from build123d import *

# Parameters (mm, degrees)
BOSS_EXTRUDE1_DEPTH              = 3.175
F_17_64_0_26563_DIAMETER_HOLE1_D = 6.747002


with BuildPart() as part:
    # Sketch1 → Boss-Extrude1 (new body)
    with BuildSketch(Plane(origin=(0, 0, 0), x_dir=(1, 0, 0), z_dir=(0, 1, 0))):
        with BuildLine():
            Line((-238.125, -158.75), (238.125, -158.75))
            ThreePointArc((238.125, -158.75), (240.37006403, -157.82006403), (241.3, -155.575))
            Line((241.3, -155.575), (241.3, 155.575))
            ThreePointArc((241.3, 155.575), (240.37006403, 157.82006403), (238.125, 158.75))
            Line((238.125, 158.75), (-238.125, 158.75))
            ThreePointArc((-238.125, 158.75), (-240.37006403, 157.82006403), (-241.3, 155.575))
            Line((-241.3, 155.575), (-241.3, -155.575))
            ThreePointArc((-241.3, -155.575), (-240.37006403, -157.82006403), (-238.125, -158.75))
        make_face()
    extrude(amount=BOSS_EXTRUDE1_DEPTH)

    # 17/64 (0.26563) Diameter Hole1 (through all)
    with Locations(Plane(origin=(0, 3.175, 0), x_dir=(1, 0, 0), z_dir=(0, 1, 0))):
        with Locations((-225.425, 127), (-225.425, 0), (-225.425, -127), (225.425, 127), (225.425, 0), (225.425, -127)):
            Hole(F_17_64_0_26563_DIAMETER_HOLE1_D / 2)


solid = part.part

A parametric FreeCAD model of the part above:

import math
import FreeCAD as App
import Part
import Sketcher
from FreeCAD import Vector
Q = App.Units.Quantity

doc = App.newDocument("Part")
body = doc.addObject("PartDesign::Body", "Body")

# Sketch on XZ plane
sketch1 = doc.addObject("Sketcher::SketchObject", "Sketch")
body.addObject(sketch1)
sketch1.AttachmentSupport = (doc.XZ_Plane, [""])
sketch1.MapMode = "FlatFace"
sketch1.addGeometry([
    Part.LineSegment(Vector(-238.1, 158.8, 0), Vector(238.1, 158.8, 0)),  # 0
    Part.ArcOfCircle(Part.Circle(Vector(238.1, 155.6, 0), Vector(0, 0, 1), 3.2), math.radians(0), math.radians(90)),  # 1
    Part.LineSegment(Vector(241.3, 155.6, 0), Vector(241.3, -155.6, 0)),  # 2
    Part.ArcOfCircle(Part.Circle(Vector(238.1, -155.6, 0), Vector(0, 0, 1), 3.2), math.radians(-90), math.radians(0)),  # 3
    Part.LineSegment(Vector(238.1, -158.8, 0), Vector(-238.1, -158.8, 0)),  # 4
    Part.ArcOfCircle(Part.Circle(Vector(-238.1, -155.6, 0), Vector(0, 0, 1), 3.2), math.radians(-180), math.radians(-90)),  # 5
    Part.LineSegment(Vector(-241.3, -155.6, 0), Vector(-241.3, 155.6, 0)),  # 6
    Part.ArcOfCircle(Part.Circle(Vector(-238.1, 155.6, 0), Vector(0, 0, 1), 3.2), math.radians(90), math.radians(180)),  # 7
], False)
sketch1.addConstraint([
    Sketcher.Constraint("Tangent", 0, 2, 1, 2),
    Sketcher.Constraint("Tangent", 1, 1, 2, 1),
    Sketcher.Constraint("Tangent", 2, 2, 3, 2),
    Sketcher.Constraint("Tangent", 3, 1, 4, 1),
    Sketcher.Constraint("Tangent", 4, 2, 5, 2),
    Sketcher.Constraint("Tangent", 5, 1, 6, 1),
    Sketcher.Constraint("Tangent", 6, 2, 7, 2),
    Sketcher.Constraint("Tangent", 7, 1, 0, 1),
    Sketcher.Constraint("Horizontal", 0),
    Sketcher.Constraint("Vertical", 2),
    Sketcher.Constraint("Horizontal", 4),
    Sketcher.Constraint("Vertical", 6),
    Sketcher.Constraint("Equal", 1, 3),
    Sketcher.Constraint("Equal", 3, 5),
    Sketcher.Constraint("Equal", 5, 7),
    Sketcher.Constraint("Symmetric", 1, 3, 5, 3, -1, 1),
    Sketcher.Constraint("Radius", 1, Q("0.125 in")),
    Sketcher.Constraint("DistanceX", 0, 1, 0, 2, Q("18.75 in")),
    Sketcher.Constraint("DistanceY", 2, 2, 2, 1, Q("12.25 in")),
])
pad1 = doc.addObject("PartDesign::Pad", "Pad")
body.addObject(pad1)
pad1.Profile = sketch1
pad1.Length = Q("0.125 in")
pad1.Reversed = True

# Sketch on XZ plane
sketch2 = doc.addObject("Sketcher::SketchObject", "Sketch001")
body.addObject(sketch2)
sketch2.AttachmentSupport = (doc.XZ_Plane, [""])
sketch2.MapMode = "FlatFace"
sketch2.AttachmentOffset = App.Placement(Vector(0, 0, -0.125 * 25.4), App.Rotation())
sketch2.addGeometry([
    Part.Circle(Vector(-225.4, -127, 0), Vector(0, 0, 1), 3.4),  # 0
    Part.Circle(Vector(-225.4, 0, 0), Vector(0, 0, 1), 3.4),  # 1
    Part.Circle(Vector(-225.4, 127, 0), Vector(0, 0, 1), 3.4),  # 2
    Part.Circle(Vector(225.4, -127, 0), Vector(0, 0, 1), 3.4),  # 3
    Part.Circle(Vector(225.4, 0, 0), Vector(0, 0, 1), 3.4),  # 4
    Part.Circle(Vector(225.4, 127, 0), Vector(0, 0, 1), 3.4),  # 5
], False)
sketch2.addConstraint([
    Sketcher.Constraint("Equal", 0, 1),
    Sketcher.Constraint("Equal", 1, 2),
    Sketcher.Constraint("Equal", 2, 3),
    Sketcher.Constraint("Equal", 3, 4),
    Sketcher.Constraint("Equal", 4, 5),
    Sketcher.Constraint("Symmetric", 2, 3, 3, 3, -1, 1),
    Sketcher.Constraint("Symmetric", 1, 3, 4, 3, -1, 1),
    Sketcher.Constraint("Symmetric", 0, 3, 5, 3, -1, 1),
    Sketcher.Constraint("Symmetric", 0, 3, 3, 3, -2),
    Sketcher.Constraint("PointOnObject", 1, 3, -1),
    Sketcher.Constraint("Vertical", 0, 3, 1, 3),
    Sketcher.Constraint("DistanceY", 0, 3, -1, 1, Q("5 in")),
    Sketcher.Constraint("DistanceX", 0, 3, 3, 3, Q("17.75 in")),
    Sketcher.Constraint("Diameter", 0, 6.747002),
])
doc.recompute()
hole = doc.addObject("PartDesign::Hole", "Hole")
body.addObject(hole)
hole.Profile = sketch2
hole.ThreadType = "None"
hole.Diameter = 6.747002
hole.DepthType = "ThroughAll"
hole.Reversed = True

doc.recompute()
